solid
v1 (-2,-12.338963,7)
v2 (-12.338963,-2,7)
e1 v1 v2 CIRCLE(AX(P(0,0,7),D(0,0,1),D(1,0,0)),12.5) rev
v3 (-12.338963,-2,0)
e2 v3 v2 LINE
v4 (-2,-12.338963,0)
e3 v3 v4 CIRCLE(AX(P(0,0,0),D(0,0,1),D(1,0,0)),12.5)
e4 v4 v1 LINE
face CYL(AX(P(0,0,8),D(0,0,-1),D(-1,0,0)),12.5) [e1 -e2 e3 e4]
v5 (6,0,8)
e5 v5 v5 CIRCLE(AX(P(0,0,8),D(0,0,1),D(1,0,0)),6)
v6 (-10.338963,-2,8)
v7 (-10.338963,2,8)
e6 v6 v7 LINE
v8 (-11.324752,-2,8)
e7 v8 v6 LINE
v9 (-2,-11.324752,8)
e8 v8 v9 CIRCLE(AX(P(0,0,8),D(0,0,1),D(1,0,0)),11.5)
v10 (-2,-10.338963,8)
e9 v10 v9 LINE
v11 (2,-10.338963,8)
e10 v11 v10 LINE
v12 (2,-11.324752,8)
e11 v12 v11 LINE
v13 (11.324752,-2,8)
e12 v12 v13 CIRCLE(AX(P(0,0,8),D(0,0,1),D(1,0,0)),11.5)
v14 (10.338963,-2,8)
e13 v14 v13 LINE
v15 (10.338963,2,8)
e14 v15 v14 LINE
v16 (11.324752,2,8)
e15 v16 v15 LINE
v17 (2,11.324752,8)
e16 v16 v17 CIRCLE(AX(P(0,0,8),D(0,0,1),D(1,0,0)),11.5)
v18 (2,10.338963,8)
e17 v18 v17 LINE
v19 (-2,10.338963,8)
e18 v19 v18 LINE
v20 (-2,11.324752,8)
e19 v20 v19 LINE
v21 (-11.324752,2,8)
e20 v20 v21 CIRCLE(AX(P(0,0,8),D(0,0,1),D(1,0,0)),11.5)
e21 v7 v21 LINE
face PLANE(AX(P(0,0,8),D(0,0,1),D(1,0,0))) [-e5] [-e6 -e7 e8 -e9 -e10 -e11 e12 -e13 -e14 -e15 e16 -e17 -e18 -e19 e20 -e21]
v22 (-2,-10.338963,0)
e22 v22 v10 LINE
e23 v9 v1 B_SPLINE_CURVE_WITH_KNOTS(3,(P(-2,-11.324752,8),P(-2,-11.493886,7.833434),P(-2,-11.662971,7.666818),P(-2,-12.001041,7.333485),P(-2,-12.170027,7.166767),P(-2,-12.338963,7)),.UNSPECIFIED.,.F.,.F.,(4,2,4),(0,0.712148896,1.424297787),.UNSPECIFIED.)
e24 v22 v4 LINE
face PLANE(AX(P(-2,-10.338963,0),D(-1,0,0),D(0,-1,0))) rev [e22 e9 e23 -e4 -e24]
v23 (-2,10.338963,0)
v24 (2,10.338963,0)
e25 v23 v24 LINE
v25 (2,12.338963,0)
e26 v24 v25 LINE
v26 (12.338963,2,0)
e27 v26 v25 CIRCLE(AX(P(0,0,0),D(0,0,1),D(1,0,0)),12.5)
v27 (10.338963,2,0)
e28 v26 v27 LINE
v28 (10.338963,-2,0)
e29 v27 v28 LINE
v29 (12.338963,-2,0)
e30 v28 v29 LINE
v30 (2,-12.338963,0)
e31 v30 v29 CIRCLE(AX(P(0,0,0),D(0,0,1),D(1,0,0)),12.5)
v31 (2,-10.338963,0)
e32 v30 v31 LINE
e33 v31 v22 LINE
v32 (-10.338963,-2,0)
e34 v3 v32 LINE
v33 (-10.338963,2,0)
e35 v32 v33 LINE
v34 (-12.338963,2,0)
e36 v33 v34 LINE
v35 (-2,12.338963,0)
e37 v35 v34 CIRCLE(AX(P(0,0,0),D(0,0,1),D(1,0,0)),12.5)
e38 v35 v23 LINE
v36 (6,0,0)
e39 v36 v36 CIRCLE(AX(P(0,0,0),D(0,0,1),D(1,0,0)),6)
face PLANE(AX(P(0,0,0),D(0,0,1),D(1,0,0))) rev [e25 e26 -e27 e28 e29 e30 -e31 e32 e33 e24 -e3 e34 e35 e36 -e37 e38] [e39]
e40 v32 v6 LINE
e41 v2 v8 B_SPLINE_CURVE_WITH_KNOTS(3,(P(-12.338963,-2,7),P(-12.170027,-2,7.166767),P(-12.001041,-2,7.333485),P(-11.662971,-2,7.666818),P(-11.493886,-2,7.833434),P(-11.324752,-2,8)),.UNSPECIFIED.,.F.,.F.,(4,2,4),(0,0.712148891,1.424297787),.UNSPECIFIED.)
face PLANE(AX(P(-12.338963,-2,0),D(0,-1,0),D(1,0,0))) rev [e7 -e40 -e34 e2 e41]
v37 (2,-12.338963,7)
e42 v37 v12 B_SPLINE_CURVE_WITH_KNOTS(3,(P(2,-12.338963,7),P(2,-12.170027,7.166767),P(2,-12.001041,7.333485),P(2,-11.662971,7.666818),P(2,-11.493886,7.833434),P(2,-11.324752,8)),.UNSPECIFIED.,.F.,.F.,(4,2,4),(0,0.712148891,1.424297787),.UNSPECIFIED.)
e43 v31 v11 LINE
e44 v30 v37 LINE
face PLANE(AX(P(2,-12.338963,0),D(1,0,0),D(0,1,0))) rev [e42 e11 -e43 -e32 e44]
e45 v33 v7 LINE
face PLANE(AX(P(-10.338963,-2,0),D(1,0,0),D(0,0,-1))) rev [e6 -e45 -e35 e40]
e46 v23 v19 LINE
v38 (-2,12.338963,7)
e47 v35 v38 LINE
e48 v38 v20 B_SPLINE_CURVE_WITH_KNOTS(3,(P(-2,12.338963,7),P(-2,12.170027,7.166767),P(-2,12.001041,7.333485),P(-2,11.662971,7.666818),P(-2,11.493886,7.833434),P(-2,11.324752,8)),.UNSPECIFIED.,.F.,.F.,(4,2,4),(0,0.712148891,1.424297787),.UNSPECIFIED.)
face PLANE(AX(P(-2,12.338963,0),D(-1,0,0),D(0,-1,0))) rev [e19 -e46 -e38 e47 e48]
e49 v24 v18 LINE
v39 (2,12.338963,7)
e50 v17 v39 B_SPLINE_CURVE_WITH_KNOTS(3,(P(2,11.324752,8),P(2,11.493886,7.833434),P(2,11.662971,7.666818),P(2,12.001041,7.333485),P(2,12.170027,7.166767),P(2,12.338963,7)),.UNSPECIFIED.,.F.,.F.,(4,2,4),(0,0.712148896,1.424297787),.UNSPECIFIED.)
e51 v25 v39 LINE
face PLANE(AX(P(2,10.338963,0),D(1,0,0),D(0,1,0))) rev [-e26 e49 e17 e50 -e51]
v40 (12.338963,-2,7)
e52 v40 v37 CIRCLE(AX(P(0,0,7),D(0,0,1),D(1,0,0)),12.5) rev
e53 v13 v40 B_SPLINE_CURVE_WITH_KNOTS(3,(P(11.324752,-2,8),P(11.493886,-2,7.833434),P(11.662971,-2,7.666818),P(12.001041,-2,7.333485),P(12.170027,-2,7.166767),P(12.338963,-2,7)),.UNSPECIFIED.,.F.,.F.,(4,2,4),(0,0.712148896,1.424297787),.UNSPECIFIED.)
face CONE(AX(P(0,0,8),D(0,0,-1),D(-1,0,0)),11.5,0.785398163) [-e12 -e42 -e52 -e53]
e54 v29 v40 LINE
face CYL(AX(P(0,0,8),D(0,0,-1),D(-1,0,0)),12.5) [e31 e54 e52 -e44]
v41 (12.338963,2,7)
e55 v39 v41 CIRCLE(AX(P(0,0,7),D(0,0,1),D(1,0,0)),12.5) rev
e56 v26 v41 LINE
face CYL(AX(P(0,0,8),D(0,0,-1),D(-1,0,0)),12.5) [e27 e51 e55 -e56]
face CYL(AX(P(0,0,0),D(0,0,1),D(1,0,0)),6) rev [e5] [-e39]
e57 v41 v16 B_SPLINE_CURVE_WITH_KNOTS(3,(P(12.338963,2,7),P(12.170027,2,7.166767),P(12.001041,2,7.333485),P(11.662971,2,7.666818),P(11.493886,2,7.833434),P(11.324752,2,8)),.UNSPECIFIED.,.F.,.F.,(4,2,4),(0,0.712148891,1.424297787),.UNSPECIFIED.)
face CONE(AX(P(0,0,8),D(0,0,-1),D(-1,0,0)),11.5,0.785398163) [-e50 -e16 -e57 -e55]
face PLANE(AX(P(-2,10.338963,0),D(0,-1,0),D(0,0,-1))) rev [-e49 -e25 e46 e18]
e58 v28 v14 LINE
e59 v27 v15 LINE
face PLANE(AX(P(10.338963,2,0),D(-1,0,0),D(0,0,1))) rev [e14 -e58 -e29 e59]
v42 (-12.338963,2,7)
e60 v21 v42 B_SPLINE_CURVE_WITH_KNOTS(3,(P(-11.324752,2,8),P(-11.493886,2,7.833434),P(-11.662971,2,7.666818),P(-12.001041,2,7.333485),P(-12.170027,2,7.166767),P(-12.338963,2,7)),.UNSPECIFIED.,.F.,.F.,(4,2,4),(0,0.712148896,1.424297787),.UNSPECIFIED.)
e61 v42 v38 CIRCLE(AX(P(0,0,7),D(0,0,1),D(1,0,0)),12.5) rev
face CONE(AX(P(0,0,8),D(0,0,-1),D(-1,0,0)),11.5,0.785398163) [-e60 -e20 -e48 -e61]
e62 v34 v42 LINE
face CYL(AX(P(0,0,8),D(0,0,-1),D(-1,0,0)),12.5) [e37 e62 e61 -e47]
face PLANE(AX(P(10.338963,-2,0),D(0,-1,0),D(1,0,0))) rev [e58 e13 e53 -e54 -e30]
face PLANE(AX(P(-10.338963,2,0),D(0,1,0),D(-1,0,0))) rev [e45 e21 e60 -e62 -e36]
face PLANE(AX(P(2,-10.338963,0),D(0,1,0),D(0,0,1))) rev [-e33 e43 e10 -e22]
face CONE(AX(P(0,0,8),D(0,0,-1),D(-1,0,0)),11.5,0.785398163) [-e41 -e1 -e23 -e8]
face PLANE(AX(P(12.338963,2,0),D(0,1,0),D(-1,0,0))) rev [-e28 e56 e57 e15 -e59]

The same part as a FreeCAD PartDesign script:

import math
import FreeCAD as App
import Part
import Sketcher


def edges_at(feature, points):
    """Names of the edges that pass closest to the given points."""
    edges = feature.Shape.Edges
    near = lambda p: min(range(len(edges)), key=lambda i: edges[i].distToShape(Part.Vertex(*p))[0])
    return sorted({f"Edge{near(p) + 1}" for p in points})

doc = App.newDocument("Part")
params = doc.addObject("Spreadsheet::Sheet", "Params")
for row, (alias, value) in enumerate([
    ("sketch1_diameter", "25 mm"),
    ("pad1_length", "8 mm"),
    ("sketch2_radius", "12.5 mm"),
    ("sketch2_width", "4 mm"),
    ("sketch2_width2", "2 mm"),
    ("sketch3_diameter", "12 mm"),
    ("chamfer_size", "1 mm"),
], start=1):
    params.set(f"A{row}", alias)
    params.set(f"B{row}", "=" + value)
    params.setAlias(f"B{row}", alias)

body = doc.addObject("PartDesign::Body", "Body")

sketch1 = body.newObject("Sketcher::SketchObject", "Sketch")
sketch1.AttachmentSupport = (doc.getObject("XY_Plane"), [""])
sketch1.MapMode = "FlatFace"
sketch1.addGeometry(Part.Circle(App.Vector(0, 0, 0), App.Vector(0, 0, 1), 12), False)
sketch1.addConstraint(Sketcher.Constraint("Coincident", 0, 3, -1, 1))
sketch1.addConstraint(Sketcher.Constraint("Diameter", 0, 25.0))
sketch1.setExpression("Constraints[1]", "Params.sketch1_diameter")
pad1 = body.newObject("PartDesign::Pad", "Pad")
pad1.Profile = sketch1
pad1.setExpression("Length", "Params.pad1_length")

sketch2 = body.newObject("Sketcher::SketchObject", "Sketch001")
sketch2.AttachmentSupport = (doc.getObject("XY_Plane"), [""])
sketch2.MapMode = "FlatFace"
sketch2.AttachmentOffset = App.Placement(App.Vector(0, 0, 8), App.Rotation())
sketch2.addGeometry(Part.LineSegment(App.Vector(-2, 12.3, 0), App.Vector(-2, 10.3, 0)), False)
sketch2.addGeometry(Part.LineSegment(App.Vector(-2, 10.3, 0), App.Vector(2, 10.3, 0)), False)
sketch2.addGeometry(Part.LineSegment(App.Vector(2, 10.3, 0), App.Vector(2, 12.3, 0)), False)
sketch2.addGeometry(Part.ArcOfCircle(Part.Circle(App.Vector(0, 0, 0), App.Vector(0, 0, 1), 12.5), math.radians(80.79), math.radians(99.21)), False)
sketch2.addGeometry(Part.LineSegment(App.Vector(12.3, 2, 0), App.Vector(10.3, 2, 0)), False)
sketch2.addGeometry(Part.LineSegment(App.Vector(10.3, 2, 0), App.Vector(10.3, -2, 0)), False)
sketch2.addGeometry(Part.LineSegment(App.Vector(10.3, -2, 0), App.Vector(12.3, -2, 0)), False)
sketch2.addGeometry(Part.ArcOfCircle(Part.Circle(App.Vector(0, 0, 0), App.Vector(0, 0, 1), 12.5), math.radians(-9.21), math.radians(9.21)), False)
sketch2.addGeometry(Part.LineSegment(App.Vector(2, -12.3, 0), App.Vector(2, -10.3, 0)), False)
sketch2.addGeometry(Part.LineSegment(App.Vector(2, -10.3, 0), App.Vector(-2, -10.3, 0)), False)
sketch2.addGeometry(Part.LineSegment(App.Vector(-2, -10.3, 0), App.Vector(-2, -12.3, 0)), False)
sketch2.addGeometry(Part.ArcOfCircle(Part.Circle(App.Vector(0, 0, 0), App.Vector(0, 0, 1), 12.5), math.radians(-99.21), math.radians(-80.79)), False)
sketch2.addGeometry(Part.LineSegment(App.Vector(-12.3, -2, 0), App.Vector(-10.3, -2, 0)), False)
sketch2.addGeometry(Part.LineSegment(App.Vector(-10.3, -2, 0), App.Vector(-10.3, 2, 0)), False)
sketch2.addGeometry(Part.LineSegment(App.Vector(-10.3, 2, 0), App.Vector(-12.3, 2, 0)), False)
sketch2.addGeometry(Part.ArcOfCircle(Part.Circle(App.Vector(0, 0, 0), App.Vector(0, 0, 1), 12.5), math.radians(170.79), math.radians(189.21)), False)
sketch2.addConstraint(Sketcher.Constraint("Coincident", 0, 2, 1, 1))
sketch2.addConstraint(Sketcher.Constraint("Coincident", 1, 2, 2, 1))
sketch2.addConstraint(Sketcher.Constraint("Coincident", 2, 2, 3, 1))
sketch2.addConstraint(Sketcher.Constraint("Coincident", 3, 2, 0, 1))
sketch2.addConstraint(Sketcher.Constraint("Coincident", 4, 2, 5, 1))
sketch2.addConstraint(Sketcher.Constraint("Coincident", 5, 2, 6, 1))
sketch2.addConstraint(Sketcher.Constraint("Coincident", 6, 2, 7, 1))
sketch2.addConstraint(Sketcher.Constraint("Coincident", 7, 2, 4, 1))
sketch2.addConstraint(Sketcher.Constraint("Coincident", 8, 2, 9, 1))
sketch2.addConstraint(Sketcher.Constraint("Coincident", 9, 2, 10, 1))
sketch2.addConstraint(Sketcher.Constraint("Coincident", 10, 2, 11, 1))
sketch2.addConstraint(Sketcher.Constraint("Coincident", 11, 2, 8, 1))
sketch2.addConstraint(Sketcher.Constraint("Coincident", 12, 2, 13, 1))
sketch2.addConstraint(Sketcher.Constraint("Coincident", 13, 2, 14, 1))
sketch2.addConstraint(Sketcher.Constraint("Coincident", 14, 2, 15, 1))
sketch2.addConstraint(Sketcher.Constraint("Coincident", 15, 2, 12, 1))
sketch2.addConstraint(Sketcher.Constraint("Vertical", 0))
sketch2.addConstraint(Sketcher.Constraint("Horizontal", 1))
sketch2.addConstraint(Sketcher.Constraint("Vertical", 2))
sketch2.addConstraint(Sketcher.Constraint("Horizontal", 4))
sketch2.addConstraint(Sketcher.Constraint("Vertical", 5))
sketch2.addConstraint(Sketcher.Constraint("Horizontal", 6))
sketch2.addConstraint(Sketcher.Constraint("Vertical", 8))
sketch2.addConstraint(Sketcher.Constraint("Horizontal", 9))
sketch2.addConstraint(Sketcher.Constraint("Vertical", 10))
sketch2.addConstraint(Sketcher.Constraint("Horizontal", 12))
sketch2.addConstraint(Sketcher.Constraint("Vertical", 13))
sketch2.addConstraint(Sketcher.Constraint("Horizontal", 14))
sketch2.addConstraint(Sketcher.Constraint("Coincident", 3, 3, -1, 1))
sketch2.addConstraint(Sketcher.Constraint("Coincident", 7, 3, -1, 1))
sketch2.addConstraint(Sketcher.Constraint("Coincident", 11, 3, -1, 1))
sketch2.addConstraint(Sketcher.Constraint("Coincident", 15, 3, -1, 1))
sketch2.addConstraint(Sketcher.Constraint("Equal", 3, 7))
sketch2.addConstraint(Sketcher.Constraint("Equal", 7, 11))
sketch2.addConstraint(Sketcher.Constraint("Equal", 11, 15))
sketch2.addConstraint(Sketcher.Constraint("Symmetric", 0, 2, 8, 2, -1, 1))
sketch2.addConstraint(Sketcher.Constraint("Symmetric", 4, 2, 12, 2, -1, 1))
sketch2.addConstraint(Sketcher.Constraint("Horizontal", 2, 2, 3, 2))
sketch2.addConstraint(Sketcher.Constraint("Horizontal", 10, 2, 11, 2))
sketch2.addConstraint(Sketcher.Constraint("Horizontal", 6, 2, 12, 2))
sketch2.addConstraint(Sketcher.Constraint("Horizontal", 7, 2, 13, 2))
sketch2.addConstraint(Sketcher.Constraint("Equal", 14, 0))
sketch2.addConstraint(Sketcher.Constraint("Equal", 9, 5))
sketch2.addConstraint(Sketcher.Constraint("Radius", 3, 12.5))
sketch2.addConstraint(Sketcher.Constraint("DistanceX", 1, 1, 1, 2, 4.0))
sketch2.addConstraint(Sketcher.Constraint("DistanceX", 4, 2, 4, 1, 2.0))
sketch2.setExpression("Constraints[43]", "Params.sketch2_radius")
sketch2.setExpression("Constraints[44]", "Params.sketch2_width")
sketch2.setExpression("Constraints[45]", "Params.sketch2_width2")
pocket1 = body.newObject("PartDesign::Pocket", "Pocket")
pocket1.Profile = sketch2
pocket1.Type = "ThroughAll"

sketch3 = body.newObject("Sketcher::SketchObject", "Sketch002")
sketch3.AttachmentSupport = (doc.getObject("XY_Plane"), [""])
sketch3.MapMode = "FlatFace"
sketch3.AttachmentOffset = App.Placement(App.Vector(0, 0, 8), App.Rotation())
sketch3.addGeometry(Part.Circle(App.Vector(0, 0, 0), App.Vector(0, 0, 1), 6), False)
sketch3.addConstraint(Sketcher.Constraint("Coincident", 0, 3, -1, 1))
sketch3.addConstraint(Sketcher.Constraint("Diameter", 0, 12.0))
sketch3.setExpression("Constraints[1]", "Params.sketch3_diameter")
pocket2 = body.newObject("PartDesign::Pocket", "Pocket001")
pocket2.Profile = sketch3
pocket2.Type = "ThroughAll"
doc.recompute()

chamfer = body.newObject("PartDesign::Chamfer", "Chamfer")
chamfer.Base = (pocket2, edges_at(pocket2, [
    (-8.839, 8.839, 8),
    (-8.839, -8.839, 8),
    (8.839, -8.839, 8),
    (8.839, 8.839, 8),
]))
chamfer.setExpression("Size", "Params.chamfer_size")

doc.recompute()
